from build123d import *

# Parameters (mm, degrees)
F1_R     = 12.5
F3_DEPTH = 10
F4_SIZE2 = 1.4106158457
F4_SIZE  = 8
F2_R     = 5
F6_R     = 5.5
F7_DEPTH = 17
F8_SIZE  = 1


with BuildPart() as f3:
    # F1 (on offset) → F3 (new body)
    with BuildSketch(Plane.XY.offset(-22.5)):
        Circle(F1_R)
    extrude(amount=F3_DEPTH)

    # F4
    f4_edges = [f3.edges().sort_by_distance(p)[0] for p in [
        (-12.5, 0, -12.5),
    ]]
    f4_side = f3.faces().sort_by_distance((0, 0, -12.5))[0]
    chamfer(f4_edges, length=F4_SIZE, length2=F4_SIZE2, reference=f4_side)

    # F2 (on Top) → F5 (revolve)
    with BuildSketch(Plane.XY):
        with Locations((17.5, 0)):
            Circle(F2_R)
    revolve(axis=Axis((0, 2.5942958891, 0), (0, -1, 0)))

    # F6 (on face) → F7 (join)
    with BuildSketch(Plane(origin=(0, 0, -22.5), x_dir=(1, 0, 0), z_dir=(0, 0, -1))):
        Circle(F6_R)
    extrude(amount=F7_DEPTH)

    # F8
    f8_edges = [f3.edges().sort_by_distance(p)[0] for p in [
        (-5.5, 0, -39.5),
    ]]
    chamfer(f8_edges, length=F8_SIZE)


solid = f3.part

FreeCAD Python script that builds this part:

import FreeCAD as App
import Part
import Sketcher

V = App.Vector


def edges_at(feature, points):
    """Names of the edges that pass closest to the given points."""
    edges = feature.Shape.Edges
    near = lambda p: min(range(len(edges)), key=lambda i: edges[i].distToShape(Part.Vertex(*p))[0])
    return sorted({f"Edge{near(p) + 1}" for p in points})

doc = App.newDocument("Part")
params = doc.addObject("Spreadsheet::Sheet", "Params")
for row, (alias, value) in enumerate([
    ("sketch1_diameter", "25 mm"),
    ("pad1_length", "10 mm"),
    ("chamfer_size", "8 mm"),
    ("chamfer_size2", "1.410616 mm"),
    ("sketch2_diameter", "10 mm"),
    ("revolution_angle", "360 deg"),
    ("sketch3_diameter", "11 mm"),
    ("pad2_length", "17 mm"),
    ("chamfer2_size", "1 mm"),
], start=1):
    params.set(f"A{row}", alias)
    params.set(f"B{row}", "=" + value)
    params.setAlias(f"B{row}", alias)

body = doc.addObject("PartDesign::Body", "Body")

# Sketch on XY plane
sketch1 = body.newObject("Sketcher::SketchObject", "Sketch")
sketch1.AttachmentSupport = (doc.getObject("XY_Plane"), [""])
sketch1.MapMode = "FlatFace"
sketch1.AttachmentOffset = App.Placement(V(0, 0, -22.5), App.Rotation())
sketch1.addGeometry(Part.Circle(V(0, 0, 0), V(0, 0, 1), 12), False)
sketch1.addConstraint(Sketcher.Constraint("Coincident", 0, 3, -1, 1))
sketch1.addConstraint(Sketcher.Constraint("Diameter", 0, 25.0))
sketch1.setExpression("Constraints[1]", "Params.sketch1_diameter")
pad1 = body.newObject("PartDesign::Pad", "Pad")
pad1.Profile = sketch1
pad1.setExpression("Length", "Params.pad1_length")
doc.recompute()

chamfer = body.newObject("PartDesign::Chamfer", "Chamfer")
chamfer.Base = (pad1, edges_at(pad1, [(-12.5, 0, -12.5)]))
chamfer.ChamferType = "Two distances"
chamfer.setExpression("Size", "Params.chamfer_size")
chamfer.setExpression("Size2", "Params.chamfer_size2")
chamfer.FlipDirection = True

# Sketch on XY plane
sketch2 = body.newObject("Sketcher::SketchObject", "Sketch001")
sketch2.AttachmentSupport = (doc.getObject("XY_Plane"), [""])
sketch2.MapMode = "FlatFace"
sketch2.addGeometry(Part.Circle(V(18, 0, 0), V(0, 0, 1), 5), False)
sketch2.addConstraint(Sketcher.Constraint("PointOnObject", 0, 3, -1))
sketch2.addConstraint(Sketcher.Constraint("Diameter", 0, 10.0))
sketch2.addConstraint(Sketcher.Constraint("DistanceX", -1, 1, 0, 3, 17.5))
sketch2.setExpression("Constraints[1]", "Params.sketch2_diameter")
revolution = body.newObject("PartDesign::Revolution", "Revolution")
revolution.Profile = sketch2
revolution.ReferenceAxis = (sketch2, ["V_Axis"])
revolution.setExpression("Angle", "Params.revolution_angle")

# Sketch on XY plane
sketch3 = body.newObject("Sketcher::SketchObject", "Sketch002")
sketch3.AttachmentSupport = (doc.getObject("XY_Plane"), [""])
sketch3.MapMode = "FlatFace"
sketch3.AttachmentOffset = App.Placement(V(0, 0, -22.5), App.Rotation())
sketch3.addGeometry(Part.Circle(V(0, 0, 0), V(0, 0, 1), 6), False)
sketch3.addConstraint(Sketcher.Constraint("Coincident", 0, 3, -1, 1))
sketch3.addConstraint(Sketcher.Constraint("Diameter", 0, 11.0))
sketch3.setExpression("Constraints[1]", "Params.sketch3_diameter")
pad2 = body.newObject("PartDesign::Pad", "Pad001")
pad2.Profile = sketch3
pad2.setExpression("Length", "Params.pad2_length")
pad2.Reversed = True
doc.recompute()

chamfer2 = body.newObject("PartDesign::Chamfer", "Chamfer001")
chamfer2.Base = (pad2, edges_at(pad2, [(-5.5, 0, -39.5)]))
chamfer2.setExpression("Size", "Params.chamfer2_size")

doc.recompute()
